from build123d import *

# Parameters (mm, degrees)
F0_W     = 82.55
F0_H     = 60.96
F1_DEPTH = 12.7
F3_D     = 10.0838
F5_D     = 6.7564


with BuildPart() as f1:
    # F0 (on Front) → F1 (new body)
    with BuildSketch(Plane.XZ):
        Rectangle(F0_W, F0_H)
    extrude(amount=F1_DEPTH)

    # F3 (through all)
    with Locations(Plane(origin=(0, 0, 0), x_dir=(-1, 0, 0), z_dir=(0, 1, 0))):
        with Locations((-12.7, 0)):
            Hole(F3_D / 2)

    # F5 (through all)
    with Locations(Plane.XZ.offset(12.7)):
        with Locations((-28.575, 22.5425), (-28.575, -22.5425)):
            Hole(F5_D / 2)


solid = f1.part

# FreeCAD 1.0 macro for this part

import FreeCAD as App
import Part
import Sketcher

V = App.Vector
Q = App.Units.Quantity


def add_polygon(sketch, points):
    """Adds a closed chain of lines whose ends are joined by coincident constraints."""
    first, n = sketch.GeometryCount, len(points)
    for a, b in zip(points, points[1:] + points[:1]):
        sketch.addGeometry(Part.LineSegment(App.Vector(*a, 0), App.Vector(*b, 0)), False)
    for i in range(n):
        sketch.addConstraint(Sketcher.Constraint("Coincident", first + i, 2, first + (i + 1) % n, 1))

doc = App.newDocument("Part")
body = doc.addObject("PartDesign::Body", "Body")

# Sketch on XZ plane
sketch1 = body.newObject("Sketcher::SketchObject", "Sketch")
sketch1.AttachmentSupport = (doc.getObject("XZ_Plane"), [""])
sketch1.MapMode = "FlatFace"
add_polygon(sketch1, [(-41, 30), (-41, -30), (41, -30), (41, 30)])  # lines 0-3
sketch1.addConstraint([
    Sketcher.Constraint("Vertical", 0),
    Sketcher.Constraint("Horizontal", 1),
    Sketcher.Constraint("Vertical", 2),
    Sketcher.Constraint("Horizontal", 3),
    Sketcher.Constraint("Symmetric", 0, 2, 2, 2, -1, 1),
    Sketcher.Constraint("DistanceY", 0, 2, 0, 1, Q("2.4 in")),
    Sketcher.Constraint("DistanceX", 1, 1, 1, 2, Q("3.25 in")),
])
pad1 = body.newObject("PartDesign::Pad", "Pad")
pad1.Profile = sketch1
pad1.Length = Q("0.5 in")

# Sketch on XZ plane
sketch2 = body.newObject("Sketcher::SketchObject", "Sketch001")
sketch2.AttachmentSupport = (doc.getObject("XZ_Plane"), [""])
sketch2.MapMode = "FlatFace"
sketch2.addGeometry(Part.Circle(V(13, 0, 0), V(0, 0, 1), 5), False)
sketch2.addConstraint([
    Sketcher.Constraint("PointOnObject", 0, 3, -1),
    Sketcher.Constraint("Diameter", 0, Q("0.397 in")),
    Sketcher.Constraint("DistanceX", -1, 1, 0, 3, Q("0.5 in")),
])
doc.recompute()
hole = body.newObject("PartDesign::Hole", "Hole")
hole.Profile = sketch2
hole.ThreadType = "None"
hole.Diameter = Q("0.397 in")
hole.DepthType = "ThroughAll"
hole.Reversed = True

# Sketch on XZ plane
sketch3 = body.newObject("Sketcher::SketchObject", "Sketch002")
sketch3.AttachmentSupport = (doc.getObject("XZ_Plane"), [""])
sketch3.MapMode = "FlatFace"
sketch3.AttachmentOffset = App.Placement(V(0, 0, 0.5 * 25.4), App.Rotation())
sketch3.addGeometry([
    Part.Circle(V(-28.6, 22.5, 0), V(0, 0, 1), 3.4),
    Part.Circle(V(-28.6, -22.5, 0), V(0, 0, 1), 3.4),
], False)
sketch3.addConstraint([
    Sketcher.Constraint("Equal", 0, 1),
    Sketcher.Constraint("Symmetric", 0, 3, 1, 3, -1),
    Sketcher.Constraint("Diameter", 0, Q("0.266 in")),
    Sketcher.Constraint("DistanceX", 0, 3, -1, 1, Q("1.125 in")),
    Sketcher.Constraint("DistanceY", 1, 3, 0, 3, Q("1.775 in")),
])
doc.recompute()
hole2 = body.newObject("PartDesign::Hole", "Hole001")
hole2.Profile = sketch3
hole2.ThreadType = "None"
hole2.Diameter = Q("0.266 in")
hole2.DepthType = "ThroughAll"

doc.recompute()
